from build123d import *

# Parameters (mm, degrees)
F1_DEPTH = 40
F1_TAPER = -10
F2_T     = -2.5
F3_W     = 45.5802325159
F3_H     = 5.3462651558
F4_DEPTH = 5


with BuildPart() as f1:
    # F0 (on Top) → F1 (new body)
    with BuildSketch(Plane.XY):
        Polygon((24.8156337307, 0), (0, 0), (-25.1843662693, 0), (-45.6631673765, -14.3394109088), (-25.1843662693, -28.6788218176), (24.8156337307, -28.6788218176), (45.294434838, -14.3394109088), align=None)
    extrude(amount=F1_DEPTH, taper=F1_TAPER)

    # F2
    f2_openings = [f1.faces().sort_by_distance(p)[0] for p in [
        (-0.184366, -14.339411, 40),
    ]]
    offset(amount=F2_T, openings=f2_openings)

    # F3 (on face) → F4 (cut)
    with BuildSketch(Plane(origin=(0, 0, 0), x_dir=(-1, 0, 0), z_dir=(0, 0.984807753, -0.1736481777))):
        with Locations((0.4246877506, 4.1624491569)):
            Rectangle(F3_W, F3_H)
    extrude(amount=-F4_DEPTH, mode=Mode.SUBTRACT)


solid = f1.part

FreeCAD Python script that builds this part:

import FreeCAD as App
import Part
import Sketcher

V = App.Vector
Q = App.Units.Quantity


def faces_at(feature, points):
    """Names of the faces that lie closest to the given points."""
    faces = feature.Shape.Faces
    near = lambda p: min(range(len(faces)), key=lambda i: faces[i].distToShape(Part.Vertex(*p))[0])
    return sorted({f"Face{near(p) + 1}" for p in points})


def add_polygon(sketch, points):
    """Adds a closed chain of lines whose ends are joined by coincident constraints."""
    first, n = sketch.GeometryCount, len(points)
    for a, b in zip(points, points[1:] + points[:1]):
        sketch.addGeometry(Part.LineSegment(App.Vector(*a, 0), App.Vector(*b, 0)), False)
    for i in range(n):
        sketch.addConstraint(Sketcher.Constraint("Coincident", first + i, 2, first + (i + 1) % n, 1))

doc = App.newDocument("Part")
body = doc.addObject("PartDesign::Body", "Body")

sketch1 = doc.addObject("Sketcher::SketchObject", "Sketch")
body.addObject(sketch1)
sketch1.AttachmentSupport = (doc.XY_Plane, [""])
sketch1.MapMode = "FlatFace"
add_polygon(sketch1, [(25, 0), (-25, 0), (-46, -14), (-25, -29), (25, -29), (45, -14)])
sketch1.addConstraint([
    Sketcher.Constraint("Horizontal", 0),
    Sketcher.Constraint("Horizontal", 3),
    Sketcher.Constraint("PointOnObject", 0, 2, -1),
    Sketcher.Constraint("Parallel", 1, 4),
    Sketcher.Constraint("Parallel", 2, 5),
    Sketcher.Constraint("Horizontal", 1, 2, 4, 2),
    Sketcher.Constraint("Vertical", 0, 2, 2, 2),
    Sketcher.Constraint("Vertical", 3, 2, 5, 2),
    Sketcher.Constraint("DistanceX", 0, 2, 0, 1, Q("50 mm")),
    Sketcher.Constraint("Angle", 1, Q("-145 deg")),
    Sketcher.Constraint("Distance", 1, Q("25 mm")),
    Sketcher.Constraint("DistanceX", 0, 2, -1, 1, Q("25.184366 mm")),
])
pad1 = doc.addObject("PartDesign::Pad", "Pad")
body.addObject(pad1)
pad1.Profile = sketch1
pad1.Length = 40
pad1.TaperAngle = 10
doc.recompute()

thickness = doc.addObject("PartDesign::Thickness", "Thickness")
body.addObject(thickness)
thickness.Base = (pad1, faces_at(pad1, [(-0.184, -14.339, 40)]))
thickness.Value = 2.5
thickness.Reversed = True
thickness.Join = "Arc"

sketch2 = doc.addObject("Sketcher::SketchObject", "Sketch001")
body.addObject(sketch2)
sketch2.Placement = App.Placement(V(0, 0, 0), App.Rotation(V(-1, 0, 0), V(0, 0.173648178, 0.984807753), V(0, 0.984807753, -0.173648178), "ZXY"))
add_polygon(sketch2, [(-22, 7), (-22, 1), (23, 1), (23, 7)])
sketch2.addConstraint([
    Sketcher.Constraint("Vertical", 0),
    Sketcher.Constraint("Horizontal", 1),
    Sketcher.Constraint("Vertical", 2),
    Sketcher.Constraint("Horizontal", 3),
    Sketcher.Constraint("DistanceX", 1, 1, 1, 2, Q("45.580233 mm")),
    Sketcher.Constraint("DistanceY", 0, 2, 0, 1, Q("5.346265 mm")),
    Sketcher.Constraint("DistanceX", 0, 2, -1, 1, Q("22.365429 mm")),
    Sketcher.Constraint("DistanceY", -1, 1, 2, 2, Q("6.835582 mm")),
])
pocket1 = doc.addObject("PartDesign::Pocket", "Pocket")
body.addObject(pocket1)
pocket1.Profile = sketch2
pocket1.Length = 5

doc.recompute()
